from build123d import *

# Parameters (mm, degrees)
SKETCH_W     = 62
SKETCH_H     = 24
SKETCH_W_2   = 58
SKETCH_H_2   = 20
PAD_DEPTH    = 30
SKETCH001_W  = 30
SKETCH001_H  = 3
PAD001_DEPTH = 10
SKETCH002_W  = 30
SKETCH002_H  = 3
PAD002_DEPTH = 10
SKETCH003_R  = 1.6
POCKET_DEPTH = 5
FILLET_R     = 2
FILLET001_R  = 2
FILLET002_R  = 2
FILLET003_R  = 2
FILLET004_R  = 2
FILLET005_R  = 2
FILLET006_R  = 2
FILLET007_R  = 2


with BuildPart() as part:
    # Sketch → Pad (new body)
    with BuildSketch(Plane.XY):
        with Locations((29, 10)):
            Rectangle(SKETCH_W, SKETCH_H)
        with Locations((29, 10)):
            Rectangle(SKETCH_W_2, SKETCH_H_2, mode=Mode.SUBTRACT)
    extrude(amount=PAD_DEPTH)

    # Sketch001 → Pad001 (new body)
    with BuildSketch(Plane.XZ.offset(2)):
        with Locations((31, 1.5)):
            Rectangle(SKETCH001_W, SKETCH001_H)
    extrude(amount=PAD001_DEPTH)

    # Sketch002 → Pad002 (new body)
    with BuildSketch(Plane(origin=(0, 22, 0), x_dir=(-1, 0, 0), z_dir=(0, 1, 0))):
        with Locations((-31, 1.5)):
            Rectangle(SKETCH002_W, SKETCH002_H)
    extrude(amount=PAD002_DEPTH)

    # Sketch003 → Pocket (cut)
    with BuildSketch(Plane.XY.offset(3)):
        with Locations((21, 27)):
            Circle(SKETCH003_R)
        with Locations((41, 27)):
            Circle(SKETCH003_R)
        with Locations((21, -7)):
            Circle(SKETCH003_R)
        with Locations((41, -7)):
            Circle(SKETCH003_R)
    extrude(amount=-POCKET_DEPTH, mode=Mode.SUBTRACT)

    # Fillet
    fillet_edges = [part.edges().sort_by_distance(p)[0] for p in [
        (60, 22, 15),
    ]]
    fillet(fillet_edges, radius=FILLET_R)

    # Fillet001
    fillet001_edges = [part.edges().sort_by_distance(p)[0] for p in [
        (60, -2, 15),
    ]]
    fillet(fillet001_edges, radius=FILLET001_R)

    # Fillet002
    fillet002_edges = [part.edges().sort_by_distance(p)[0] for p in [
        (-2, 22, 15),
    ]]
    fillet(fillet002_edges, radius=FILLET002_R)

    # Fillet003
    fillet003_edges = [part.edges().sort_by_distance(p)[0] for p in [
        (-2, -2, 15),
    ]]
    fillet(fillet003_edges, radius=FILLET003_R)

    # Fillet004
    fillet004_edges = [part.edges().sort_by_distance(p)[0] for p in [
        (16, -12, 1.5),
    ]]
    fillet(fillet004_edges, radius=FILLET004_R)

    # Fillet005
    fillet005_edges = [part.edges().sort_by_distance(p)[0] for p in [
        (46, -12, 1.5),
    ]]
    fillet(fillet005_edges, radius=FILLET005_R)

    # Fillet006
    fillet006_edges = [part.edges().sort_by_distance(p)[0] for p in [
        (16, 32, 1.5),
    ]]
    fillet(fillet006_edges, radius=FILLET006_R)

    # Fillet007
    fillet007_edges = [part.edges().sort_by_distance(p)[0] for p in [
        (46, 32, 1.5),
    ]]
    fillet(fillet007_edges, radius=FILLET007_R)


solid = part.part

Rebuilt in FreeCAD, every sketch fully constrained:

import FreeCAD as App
import Part
import Sketcher

V = App.Vector


def edges_at(feature, points):
    """Names of the edges that pass closest to the given points."""
    edges = feature.Shape.Edges
    near = lambda p: min(range(len(edges)), key=lambda i: edges[i].distToShape(Part.Vertex(*p))[0])
    return sorted({f"Edge{near(p) + 1}" for p in points})

doc = App.newDocument("Part")
body = doc.addObject("PartDesign::Body", "Body")

# Sketch on XY plane
sketch1 = body.newObject("Sketcher::SketchObject", "Sketch")
sketch1.AttachmentSupport = (doc.getObject("XY_Plane"), [""])
sketch1.MapMode = "FlatFace"
sketch1.addGeometry([
    Part.LineSegment(V(-2, 22, 0), V(-2, -2, 0)),  # 0
    Part.LineSegment(V(-2, -2, 0), V(60, -2, 0)),  # 1
    Part.LineSegment(V(60, -2, 0), V(60, 22, 0)),  # 2
    Part.LineSegment(V(60, 22, 0), V(-2, 22, 0)),  # 3
    Part.LineSegment(V(58, 0, 0), V(0, 0, 0)),  # 4
    Part.LineSegment(V(0, 0, 0), V(0, 20, 0)),  # 5
    Part.LineSegment(V(0, 20, 0), V(58, 20, 0)),  # 6
    Part.LineSegment(V(58, 20, 0), V(58, 0, 0)),  # 7
], False)
sketch1.addConstraint([
    Sketcher.Constraint("Coincident", 0, 2, 1, 1),
    Sketcher.Constraint("Coincident", 1, 2, 2, 1),
    Sketcher.Constraint("Coincident", 2, 2, 3, 1),
    Sketcher.Constraint("Coincident", 3, 2, 0, 1),
    Sketcher.Constraint("Coincident", 4, 2, 5, 1),
    Sketcher.Constraint("Coincident", 5, 2, 6, 1),
    Sketcher.Constraint("Coincident", 6, 2, 7, 1),
    Sketcher.Constraint("Coincident", 7, 2, 4, 1),
    Sketcher.Constraint("Vertical", 0),
    Sketcher.Constraint("Horizontal", 1),
    Sketcher.Constraint("Vertical", 2),
    Sketcher.Constraint("Horizontal", 3),
    Sketcher.Constraint("Horizontal", 4),
    Sketcher.Constraint("Vertical", 5),
    Sketcher.Constraint("Horizontal", 6),
    Sketcher.Constraint("Vertical", 7),
    Sketcher.Constraint("Coincident", 4, 2, -1, 1),
    Sketcher.Constraint("DistanceX", 1, 1, 1, 2, 62.0),
    Sketcher.Constraint("DistanceX", 4, 2, 4, 1, 58.0),
    Sketcher.Constraint("DistanceY", 0, 2, 0, 1, 24.0),
    Sketcher.Constraint("DistanceY", 5, 1, 5, 2, 20.0),
    Sketcher.Constraint("DistanceX", 0, 2, -1, 1, 2.0),
    Sketcher.Constraint("DistanceY", 0, 2, -1, 1, 2.0),
])
pad1 = body.newObject("PartDesign::Pad", "Pad")
pad1.Profile = sketch1
pad1.Length = 30

# Sketch on XZ plane
sketch2 = body.newObject("Sketcher::SketchObject", "Sketch001")
sketch2.AttachmentSupport = (doc.getObject("XZ_Plane"), [""])
sketch2.MapMode = "FlatFace"
sketch2.AttachmentOffset = App.Placement(V(0, 0, 2), App.Rotation())
sketch2.addGeometry([
    Part.LineSegment(V(16, 3, 0), V(16, 0, 0)),
    Part.LineSegment(V(16, 0, 0), V(46, 0, 0)),
    Part.LineSegment(V(46, 0, 0), V(46, 3, 0)),
    Part.LineSegment(V(46, 3, 0), V(16, 3, 0)),
], False)
sketch2.addConstraint([
    Sketcher.Constraint("Coincident", 0, 2, 1, 1),
    Sketcher.Constraint("Coincident", 1, 2, 2, 1),
    Sketcher.Constraint("Coincident", 2, 2, 3, 1),
    Sketcher.Constraint("Coincident", 3, 2, 0, 1),
    Sketcher.Constraint("Vertical", 0),
    Sketcher.Constraint("Horizontal", 1),
    Sketcher.Constraint("Vertical", 2),
    Sketcher.Constraint("Horizontal", 3),
    Sketcher.Constraint("PointOnObject", 0, 2, -1),
    Sketcher.Constraint("DistanceX", 1, 1, 1, 2, 30.0),
    Sketcher.Constraint("DistanceY", 0, 2, 0, 1, 3.0),
    Sketcher.Constraint("DistanceX", -1, 1, 0, 2, 16.0),
])
pad2 = body.newObject("PartDesign::Pad", "Pad001")
pad2.Profile = sketch2
pad2.Length = 10

# Sketch on XZ plane
sketch3 = body.newObject("Sketcher::SketchObject", "Sketch002")
sketch3.AttachmentSupport = (doc.getObject("XZ_Plane"), [""])
sketch3.MapMode = "FlatFace"
sketch3.AttachmentOffset = App.Placement(V(0, 0, -22), App.Rotation())
sketch3.addGeometry([
    Part.LineSegment(V(46, 3, 0), V(46, 0, 0)),
    Part.LineSegment(V(46, 0, 0), V(16, 0, 0)),
    Part.LineSegment(V(16, 0, 0), V(16, 3, 0)),
    Part.LineSegment(V(16, 3, 0), V(46, 3, 0)),
], False)
sketch3.addConstraint([
    Sketcher.Constraint("Coincident", 0, 2, 1, 1),
    Sketcher.Constraint("Coincident", 1, 2, 2, 1),
    Sketcher.Constraint("Coincident", 2, 2, 3, 1),
    Sketcher.Constraint("Coincident", 3, 2, 0, 1),
    Sketcher.Constraint("Vertical", 0),
    Sketcher.Constraint("Horizontal", 1),
    Sketcher.Constraint("Vertical", 2),
    Sketcher.Constraint("Horizontal", 3),
    Sketcher.Constraint("PointOnObject", 0, 2, -1),
    Sketcher.Constraint("DistanceX", 1, 2, 1, 1, 30.0),
    Sketcher.Constraint("DistanceY", 0, 2, 0, 1, 3.0),
    Sketcher.Constraint("DistanceX", -1, 1, 0, 2, 46.0),
])
pad3 = body.newObject("PartDesign::Pad", "Pad002")
pad3.Profile = sketch3
pad3.Length = 10
pad3.Reversed = True

# Sketch on XY plane
sketch4 = body.newObject("Sketcher::SketchObject", "Sketch003")
sketch4.AttachmentSupport = (doc.getObject("XY_Plane"), [""])
sketch4.MapMode = "FlatFace"
sketch4.AttachmentOffset = App.Placement(V(0, 0, 3), App.Rotation())
sketch4.addGeometry([
    Part.Circle(V(21, 27, 0), V(0, 0, 1), 1.6),
    Part.Circle(V(41, 27, 0), V(0, 0, 1), 1.6),
    Part.Circle(V(21, -7, 0), V(0, 0, 1), 1.6),
    Part.Circle(V(41, -7, 0), V(0, 0, 1), 1.6),
], False)
sketch4.addConstraint([
    Sketcher.Constraint("Equal", 0, 1),
    Sketcher.Constraint("Equal", 1, 2),
    Sketcher.Constraint("Equal", 2, 3),
    Sketcher.Constraint("Horizontal", 0, 3, 1, 3),
    Sketcher.Constraint("Horizontal", 2, 3, 3, 3),
    Sketcher.Constraint("Vertical", 0, 3, 2, 3),
    Sketcher.Constraint("Vertical", 1, 3, 3, 3),
    Sketcher.Constraint("Diameter", 0, 3.2),
    Sketcher.Constraint("DistanceX", -1, 1, 0, 3, 21.0),
    Sketcher.Constraint("DistanceY", -1, 1, 0, 3, 27.0),
    Sketcher.Constraint("DistanceX", -1, 1, 1, 3, 41.0),
    Sketcher.Constraint("DistanceY", 2, 3, -1, 1, 7.0),
])
pocket1 = body.newObject("PartDesign::Pocket", "Pocket")
pocket1.Profile = sketch4
pocket1.Length = 5
doc.recompute()

fillet = body.newObject("PartDesign::Fillet", "Fillet")
fillet.Base = (pocket1, edges_at(pocket1, [(60, 22, 15)]))
fillet.Radius = 2
doc.recompute()

fillet2 = body.newObject("PartDesign::Fillet", "Fillet001")
fillet2.Base = (fillet, edges_at(fillet, [(60, -2, 15)]))
fillet2.Radius = 2
doc.recompute()

fillet3 = body.newObject("PartDesign::Fillet", "Fillet002")
fillet3.Base = (fillet2, edges_at(fillet2, [(-2, 22, 15)]))
fillet3.Radius = 2
doc.recompute()

fillet4 = body.newObject("PartDesign::Fillet", "Fillet003")
fillet4.Base = (fillet3, edges_at(fillet3, [(-2, -2, 15)]))
fillet4.Radius = 2
doc.recompute()

fillet5 = body.newObject("PartDesign::Fillet", "Fillet004")
fillet5.Base = (fillet4, edges_at(fillet4, [(16, -12, 1.5)]))
fillet5.Radius = 2
doc.recompute()

fillet6 = body.newObject("PartDesign::Fillet", "Fillet005")
fillet6.Base = (fillet5, edges_at(fillet5, [(46, -12, 1.5)]))
fillet6.Radius = 2
doc.recompute()

fillet7 = body.newObject("PartDesign::Fillet", "Fillet006")
fillet7.Base = (fillet6, edges_at(fillet6, [(16, 32, 1.5)]))
fillet7.Radius = 2
doc.recompute()

fillet8 = body.newObject("PartDesign::Fillet", "Fillet007")
fillet8.Base = (fillet7, edges_at(fillet7, [(46, 32, 1.5)]))
fillet8.Radius = 2

doc.recompute()
